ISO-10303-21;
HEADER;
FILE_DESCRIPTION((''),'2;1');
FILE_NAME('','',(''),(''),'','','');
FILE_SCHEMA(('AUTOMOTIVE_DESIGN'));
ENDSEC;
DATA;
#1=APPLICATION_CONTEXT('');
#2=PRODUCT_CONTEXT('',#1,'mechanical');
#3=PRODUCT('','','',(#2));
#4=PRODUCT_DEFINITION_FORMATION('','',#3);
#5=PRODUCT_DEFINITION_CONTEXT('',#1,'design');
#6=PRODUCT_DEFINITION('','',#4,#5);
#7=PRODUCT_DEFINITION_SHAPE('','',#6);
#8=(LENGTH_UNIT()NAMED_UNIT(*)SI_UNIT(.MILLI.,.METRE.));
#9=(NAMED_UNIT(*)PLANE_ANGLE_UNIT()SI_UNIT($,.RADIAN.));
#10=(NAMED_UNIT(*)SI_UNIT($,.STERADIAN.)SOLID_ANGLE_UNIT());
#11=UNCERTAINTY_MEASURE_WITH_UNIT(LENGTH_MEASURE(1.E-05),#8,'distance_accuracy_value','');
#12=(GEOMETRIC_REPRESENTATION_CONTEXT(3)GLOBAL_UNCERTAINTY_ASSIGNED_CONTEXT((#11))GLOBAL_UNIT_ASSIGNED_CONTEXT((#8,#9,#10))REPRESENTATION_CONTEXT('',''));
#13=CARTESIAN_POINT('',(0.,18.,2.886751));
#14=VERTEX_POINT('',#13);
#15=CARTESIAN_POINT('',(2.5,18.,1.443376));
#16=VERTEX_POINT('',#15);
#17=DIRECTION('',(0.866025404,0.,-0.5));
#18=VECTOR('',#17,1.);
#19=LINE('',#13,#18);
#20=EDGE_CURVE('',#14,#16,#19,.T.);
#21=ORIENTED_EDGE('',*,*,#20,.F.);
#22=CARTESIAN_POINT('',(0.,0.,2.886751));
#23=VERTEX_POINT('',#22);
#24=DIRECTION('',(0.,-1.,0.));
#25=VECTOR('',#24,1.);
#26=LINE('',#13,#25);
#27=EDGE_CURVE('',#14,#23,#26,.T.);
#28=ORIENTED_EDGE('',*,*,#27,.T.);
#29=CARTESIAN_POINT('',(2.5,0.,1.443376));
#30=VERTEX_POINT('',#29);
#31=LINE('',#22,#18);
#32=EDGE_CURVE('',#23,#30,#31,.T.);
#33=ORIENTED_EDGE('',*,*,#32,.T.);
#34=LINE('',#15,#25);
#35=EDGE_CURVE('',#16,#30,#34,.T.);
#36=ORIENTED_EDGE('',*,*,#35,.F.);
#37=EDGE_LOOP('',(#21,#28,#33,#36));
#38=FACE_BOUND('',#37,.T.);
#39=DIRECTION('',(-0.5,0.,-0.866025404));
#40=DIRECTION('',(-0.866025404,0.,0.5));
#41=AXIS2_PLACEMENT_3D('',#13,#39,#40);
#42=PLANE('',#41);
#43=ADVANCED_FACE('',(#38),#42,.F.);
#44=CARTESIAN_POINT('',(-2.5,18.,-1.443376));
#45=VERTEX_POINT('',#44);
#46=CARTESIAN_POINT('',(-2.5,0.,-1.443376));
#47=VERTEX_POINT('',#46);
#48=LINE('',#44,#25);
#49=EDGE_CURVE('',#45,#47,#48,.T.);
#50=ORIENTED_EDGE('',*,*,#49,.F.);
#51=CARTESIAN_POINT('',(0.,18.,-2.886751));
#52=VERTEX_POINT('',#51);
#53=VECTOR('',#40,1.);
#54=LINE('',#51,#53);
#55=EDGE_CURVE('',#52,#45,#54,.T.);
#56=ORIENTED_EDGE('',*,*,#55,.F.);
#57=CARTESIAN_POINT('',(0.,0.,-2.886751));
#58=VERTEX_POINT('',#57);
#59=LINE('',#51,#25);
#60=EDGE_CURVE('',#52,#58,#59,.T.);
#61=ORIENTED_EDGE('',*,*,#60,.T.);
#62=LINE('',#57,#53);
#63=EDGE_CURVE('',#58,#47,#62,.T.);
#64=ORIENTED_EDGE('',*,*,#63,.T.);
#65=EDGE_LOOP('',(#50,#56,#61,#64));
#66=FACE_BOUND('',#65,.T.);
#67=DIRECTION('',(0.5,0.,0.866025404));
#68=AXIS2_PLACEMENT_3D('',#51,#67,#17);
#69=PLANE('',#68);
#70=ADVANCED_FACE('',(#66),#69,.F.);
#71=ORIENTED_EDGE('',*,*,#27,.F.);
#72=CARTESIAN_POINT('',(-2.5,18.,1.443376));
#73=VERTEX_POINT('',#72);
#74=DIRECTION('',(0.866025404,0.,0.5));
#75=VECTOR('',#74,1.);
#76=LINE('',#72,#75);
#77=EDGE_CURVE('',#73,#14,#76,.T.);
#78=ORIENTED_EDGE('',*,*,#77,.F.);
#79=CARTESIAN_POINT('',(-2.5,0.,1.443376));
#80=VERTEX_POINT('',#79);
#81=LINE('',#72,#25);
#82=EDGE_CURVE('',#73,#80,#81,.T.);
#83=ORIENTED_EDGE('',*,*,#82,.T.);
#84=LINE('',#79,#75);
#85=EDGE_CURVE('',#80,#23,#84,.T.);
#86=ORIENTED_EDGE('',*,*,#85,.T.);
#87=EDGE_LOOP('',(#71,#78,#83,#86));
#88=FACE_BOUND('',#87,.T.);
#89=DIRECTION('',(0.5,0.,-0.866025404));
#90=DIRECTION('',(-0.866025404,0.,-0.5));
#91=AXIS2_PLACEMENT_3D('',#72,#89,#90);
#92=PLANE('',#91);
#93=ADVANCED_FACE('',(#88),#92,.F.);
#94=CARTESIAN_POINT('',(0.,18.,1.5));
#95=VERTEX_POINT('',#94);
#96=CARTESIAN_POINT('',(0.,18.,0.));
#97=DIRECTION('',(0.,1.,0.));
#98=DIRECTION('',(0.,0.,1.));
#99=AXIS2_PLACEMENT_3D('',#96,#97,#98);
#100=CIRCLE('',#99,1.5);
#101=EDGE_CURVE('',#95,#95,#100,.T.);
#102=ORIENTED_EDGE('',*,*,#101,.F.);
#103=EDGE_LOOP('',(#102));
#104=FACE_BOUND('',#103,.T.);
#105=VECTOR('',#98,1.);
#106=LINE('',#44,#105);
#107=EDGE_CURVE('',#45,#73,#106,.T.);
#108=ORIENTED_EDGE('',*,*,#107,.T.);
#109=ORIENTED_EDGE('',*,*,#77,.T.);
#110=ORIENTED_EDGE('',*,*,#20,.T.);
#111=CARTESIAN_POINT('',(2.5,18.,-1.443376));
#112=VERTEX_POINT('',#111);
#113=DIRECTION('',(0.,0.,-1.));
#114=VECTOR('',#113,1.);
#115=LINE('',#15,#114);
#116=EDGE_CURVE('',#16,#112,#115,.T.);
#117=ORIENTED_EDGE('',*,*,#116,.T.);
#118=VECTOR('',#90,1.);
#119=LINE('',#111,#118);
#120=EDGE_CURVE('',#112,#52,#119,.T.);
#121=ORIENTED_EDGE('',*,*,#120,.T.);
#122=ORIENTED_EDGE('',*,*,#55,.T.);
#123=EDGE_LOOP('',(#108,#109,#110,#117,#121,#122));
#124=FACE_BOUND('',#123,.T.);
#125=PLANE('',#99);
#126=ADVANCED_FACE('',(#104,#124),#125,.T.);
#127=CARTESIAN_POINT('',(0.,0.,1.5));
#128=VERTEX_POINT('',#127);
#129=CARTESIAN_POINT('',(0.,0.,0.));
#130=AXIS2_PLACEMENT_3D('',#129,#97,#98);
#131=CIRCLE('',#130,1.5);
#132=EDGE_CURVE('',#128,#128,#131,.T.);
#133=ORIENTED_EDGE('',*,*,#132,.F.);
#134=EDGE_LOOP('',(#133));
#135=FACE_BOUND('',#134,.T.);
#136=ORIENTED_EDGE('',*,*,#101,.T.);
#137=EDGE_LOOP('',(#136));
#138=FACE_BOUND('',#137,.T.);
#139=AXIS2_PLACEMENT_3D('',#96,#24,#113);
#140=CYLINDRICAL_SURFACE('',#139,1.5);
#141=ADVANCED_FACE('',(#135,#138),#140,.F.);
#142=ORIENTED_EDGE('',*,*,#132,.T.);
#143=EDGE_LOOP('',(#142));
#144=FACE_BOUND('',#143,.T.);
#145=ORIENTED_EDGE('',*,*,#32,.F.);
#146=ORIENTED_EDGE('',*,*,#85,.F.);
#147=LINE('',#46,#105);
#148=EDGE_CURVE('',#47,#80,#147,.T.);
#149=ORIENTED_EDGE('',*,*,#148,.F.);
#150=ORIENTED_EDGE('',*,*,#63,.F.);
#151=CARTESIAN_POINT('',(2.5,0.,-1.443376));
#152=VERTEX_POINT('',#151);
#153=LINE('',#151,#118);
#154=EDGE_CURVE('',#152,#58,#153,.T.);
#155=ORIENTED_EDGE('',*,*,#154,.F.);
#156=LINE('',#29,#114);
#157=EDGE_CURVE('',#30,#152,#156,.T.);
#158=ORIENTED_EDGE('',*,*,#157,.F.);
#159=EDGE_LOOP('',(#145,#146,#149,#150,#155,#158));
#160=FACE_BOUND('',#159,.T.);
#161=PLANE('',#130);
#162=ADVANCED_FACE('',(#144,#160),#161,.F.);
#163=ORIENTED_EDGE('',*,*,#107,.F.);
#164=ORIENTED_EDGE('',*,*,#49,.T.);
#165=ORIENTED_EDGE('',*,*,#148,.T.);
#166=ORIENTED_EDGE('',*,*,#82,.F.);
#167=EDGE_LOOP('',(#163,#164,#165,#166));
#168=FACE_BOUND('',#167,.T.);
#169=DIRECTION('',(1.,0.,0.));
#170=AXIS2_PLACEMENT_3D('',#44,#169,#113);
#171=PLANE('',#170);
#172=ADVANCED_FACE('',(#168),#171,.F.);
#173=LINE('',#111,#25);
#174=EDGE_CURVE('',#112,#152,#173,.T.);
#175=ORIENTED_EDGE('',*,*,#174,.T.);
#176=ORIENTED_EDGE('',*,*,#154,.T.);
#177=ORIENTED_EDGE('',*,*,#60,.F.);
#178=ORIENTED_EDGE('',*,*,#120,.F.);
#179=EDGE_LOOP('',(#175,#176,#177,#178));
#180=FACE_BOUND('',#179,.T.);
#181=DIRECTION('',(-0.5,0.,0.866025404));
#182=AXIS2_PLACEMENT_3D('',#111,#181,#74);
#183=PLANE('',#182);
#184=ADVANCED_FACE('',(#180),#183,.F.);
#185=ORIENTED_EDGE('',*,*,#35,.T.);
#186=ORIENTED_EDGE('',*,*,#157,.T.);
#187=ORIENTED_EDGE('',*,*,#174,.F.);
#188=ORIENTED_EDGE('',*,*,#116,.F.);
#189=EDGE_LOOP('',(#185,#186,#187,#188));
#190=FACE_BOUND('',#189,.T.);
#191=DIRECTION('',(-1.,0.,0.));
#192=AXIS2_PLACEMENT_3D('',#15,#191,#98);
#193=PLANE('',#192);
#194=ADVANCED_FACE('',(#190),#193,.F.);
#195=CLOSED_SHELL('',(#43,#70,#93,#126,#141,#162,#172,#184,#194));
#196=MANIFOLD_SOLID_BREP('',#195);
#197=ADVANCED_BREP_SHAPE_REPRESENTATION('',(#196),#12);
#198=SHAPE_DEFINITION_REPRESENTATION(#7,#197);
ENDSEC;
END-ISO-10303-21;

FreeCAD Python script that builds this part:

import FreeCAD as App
import Part
import Sketcher
from FreeCAD import Vector
Q = App.Units.Quantity


def add_polygon(sketch, points):
    """Adds a closed chain of lines whose ends are joined by coincident constraints."""
    first, n = sketch.GeometryCount, len(points)
    for a, b in zip(points, points[1:] + points[:1]):
        sketch.addGeometry(Part.LineSegment(App.Vector(*a, 0), App.Vector(*b, 0)), False)
    for i in range(n):
        sketch.addConstraint(Sketcher.Constraint("Coincident", first + i, 2, first + (i + 1) % n, 1))

doc = App.newDocument("Part")
body = doc.addObject("PartDesign::Body", "Body")

# Sketch on XZ plane
sketch1 = doc.addObject("Sketcher::SketchObject", "Sketch")
body.addObject(sketch1)
sketch1.AttachmentSupport = (doc.XZ_Plane, [""])
sketch1.MapMode = "FlatFace"
add_polygon(sketch1, [(0, -2.9), (-2.5, -1.4), (-2.5, 1.4), (0, 2.9), (2.5, 1.4), (2.5, -1.4)])  # lines 0-5
sketch1.addGeometry(Part.Circle(Vector(0, 0, 0), Vector(0, 0, 1), 1.5), False)  # 6
sketch1.addConstraint([
    Sketcher.Constraint("Vertical", 1),
    Sketcher.Constraint("Vertical", 4),
    Sketcher.Constraint("Coincident", 6, 3, -1, 1),
    Sketcher.Constraint("Symmetric", 0, 2, 3, 2, -1, 1),
    Sketcher.Constraint("Symmetric", 2, 2, 5, 2, -1, 1),
    Sketcher.Constraint("PointOnObject", 2, 2, -2),
    Sketcher.Constraint("Parallel", 2, 5),
    Sketcher.Constraint("Horizontal", 1, 2, 3, 2),
    Sketcher.Constraint("Diameter", 6, 3.0),
    Sketcher.Constraint("Angle", 0, Q("150 deg")),
    Sketcher.Constraint("DistanceX", 1, 2, 3, 2, 5.0),
    Sketcher.Constraint("DistanceY", 1, 1, 1, 2, 2.886751),
])
pad1 = doc.addObject("PartDesign::Pad", "Pad")
body.addObject(pad1)
pad1.Profile = sketch1
pad1.Length = 18
pad1.Reversed = True

doc.recompute()
